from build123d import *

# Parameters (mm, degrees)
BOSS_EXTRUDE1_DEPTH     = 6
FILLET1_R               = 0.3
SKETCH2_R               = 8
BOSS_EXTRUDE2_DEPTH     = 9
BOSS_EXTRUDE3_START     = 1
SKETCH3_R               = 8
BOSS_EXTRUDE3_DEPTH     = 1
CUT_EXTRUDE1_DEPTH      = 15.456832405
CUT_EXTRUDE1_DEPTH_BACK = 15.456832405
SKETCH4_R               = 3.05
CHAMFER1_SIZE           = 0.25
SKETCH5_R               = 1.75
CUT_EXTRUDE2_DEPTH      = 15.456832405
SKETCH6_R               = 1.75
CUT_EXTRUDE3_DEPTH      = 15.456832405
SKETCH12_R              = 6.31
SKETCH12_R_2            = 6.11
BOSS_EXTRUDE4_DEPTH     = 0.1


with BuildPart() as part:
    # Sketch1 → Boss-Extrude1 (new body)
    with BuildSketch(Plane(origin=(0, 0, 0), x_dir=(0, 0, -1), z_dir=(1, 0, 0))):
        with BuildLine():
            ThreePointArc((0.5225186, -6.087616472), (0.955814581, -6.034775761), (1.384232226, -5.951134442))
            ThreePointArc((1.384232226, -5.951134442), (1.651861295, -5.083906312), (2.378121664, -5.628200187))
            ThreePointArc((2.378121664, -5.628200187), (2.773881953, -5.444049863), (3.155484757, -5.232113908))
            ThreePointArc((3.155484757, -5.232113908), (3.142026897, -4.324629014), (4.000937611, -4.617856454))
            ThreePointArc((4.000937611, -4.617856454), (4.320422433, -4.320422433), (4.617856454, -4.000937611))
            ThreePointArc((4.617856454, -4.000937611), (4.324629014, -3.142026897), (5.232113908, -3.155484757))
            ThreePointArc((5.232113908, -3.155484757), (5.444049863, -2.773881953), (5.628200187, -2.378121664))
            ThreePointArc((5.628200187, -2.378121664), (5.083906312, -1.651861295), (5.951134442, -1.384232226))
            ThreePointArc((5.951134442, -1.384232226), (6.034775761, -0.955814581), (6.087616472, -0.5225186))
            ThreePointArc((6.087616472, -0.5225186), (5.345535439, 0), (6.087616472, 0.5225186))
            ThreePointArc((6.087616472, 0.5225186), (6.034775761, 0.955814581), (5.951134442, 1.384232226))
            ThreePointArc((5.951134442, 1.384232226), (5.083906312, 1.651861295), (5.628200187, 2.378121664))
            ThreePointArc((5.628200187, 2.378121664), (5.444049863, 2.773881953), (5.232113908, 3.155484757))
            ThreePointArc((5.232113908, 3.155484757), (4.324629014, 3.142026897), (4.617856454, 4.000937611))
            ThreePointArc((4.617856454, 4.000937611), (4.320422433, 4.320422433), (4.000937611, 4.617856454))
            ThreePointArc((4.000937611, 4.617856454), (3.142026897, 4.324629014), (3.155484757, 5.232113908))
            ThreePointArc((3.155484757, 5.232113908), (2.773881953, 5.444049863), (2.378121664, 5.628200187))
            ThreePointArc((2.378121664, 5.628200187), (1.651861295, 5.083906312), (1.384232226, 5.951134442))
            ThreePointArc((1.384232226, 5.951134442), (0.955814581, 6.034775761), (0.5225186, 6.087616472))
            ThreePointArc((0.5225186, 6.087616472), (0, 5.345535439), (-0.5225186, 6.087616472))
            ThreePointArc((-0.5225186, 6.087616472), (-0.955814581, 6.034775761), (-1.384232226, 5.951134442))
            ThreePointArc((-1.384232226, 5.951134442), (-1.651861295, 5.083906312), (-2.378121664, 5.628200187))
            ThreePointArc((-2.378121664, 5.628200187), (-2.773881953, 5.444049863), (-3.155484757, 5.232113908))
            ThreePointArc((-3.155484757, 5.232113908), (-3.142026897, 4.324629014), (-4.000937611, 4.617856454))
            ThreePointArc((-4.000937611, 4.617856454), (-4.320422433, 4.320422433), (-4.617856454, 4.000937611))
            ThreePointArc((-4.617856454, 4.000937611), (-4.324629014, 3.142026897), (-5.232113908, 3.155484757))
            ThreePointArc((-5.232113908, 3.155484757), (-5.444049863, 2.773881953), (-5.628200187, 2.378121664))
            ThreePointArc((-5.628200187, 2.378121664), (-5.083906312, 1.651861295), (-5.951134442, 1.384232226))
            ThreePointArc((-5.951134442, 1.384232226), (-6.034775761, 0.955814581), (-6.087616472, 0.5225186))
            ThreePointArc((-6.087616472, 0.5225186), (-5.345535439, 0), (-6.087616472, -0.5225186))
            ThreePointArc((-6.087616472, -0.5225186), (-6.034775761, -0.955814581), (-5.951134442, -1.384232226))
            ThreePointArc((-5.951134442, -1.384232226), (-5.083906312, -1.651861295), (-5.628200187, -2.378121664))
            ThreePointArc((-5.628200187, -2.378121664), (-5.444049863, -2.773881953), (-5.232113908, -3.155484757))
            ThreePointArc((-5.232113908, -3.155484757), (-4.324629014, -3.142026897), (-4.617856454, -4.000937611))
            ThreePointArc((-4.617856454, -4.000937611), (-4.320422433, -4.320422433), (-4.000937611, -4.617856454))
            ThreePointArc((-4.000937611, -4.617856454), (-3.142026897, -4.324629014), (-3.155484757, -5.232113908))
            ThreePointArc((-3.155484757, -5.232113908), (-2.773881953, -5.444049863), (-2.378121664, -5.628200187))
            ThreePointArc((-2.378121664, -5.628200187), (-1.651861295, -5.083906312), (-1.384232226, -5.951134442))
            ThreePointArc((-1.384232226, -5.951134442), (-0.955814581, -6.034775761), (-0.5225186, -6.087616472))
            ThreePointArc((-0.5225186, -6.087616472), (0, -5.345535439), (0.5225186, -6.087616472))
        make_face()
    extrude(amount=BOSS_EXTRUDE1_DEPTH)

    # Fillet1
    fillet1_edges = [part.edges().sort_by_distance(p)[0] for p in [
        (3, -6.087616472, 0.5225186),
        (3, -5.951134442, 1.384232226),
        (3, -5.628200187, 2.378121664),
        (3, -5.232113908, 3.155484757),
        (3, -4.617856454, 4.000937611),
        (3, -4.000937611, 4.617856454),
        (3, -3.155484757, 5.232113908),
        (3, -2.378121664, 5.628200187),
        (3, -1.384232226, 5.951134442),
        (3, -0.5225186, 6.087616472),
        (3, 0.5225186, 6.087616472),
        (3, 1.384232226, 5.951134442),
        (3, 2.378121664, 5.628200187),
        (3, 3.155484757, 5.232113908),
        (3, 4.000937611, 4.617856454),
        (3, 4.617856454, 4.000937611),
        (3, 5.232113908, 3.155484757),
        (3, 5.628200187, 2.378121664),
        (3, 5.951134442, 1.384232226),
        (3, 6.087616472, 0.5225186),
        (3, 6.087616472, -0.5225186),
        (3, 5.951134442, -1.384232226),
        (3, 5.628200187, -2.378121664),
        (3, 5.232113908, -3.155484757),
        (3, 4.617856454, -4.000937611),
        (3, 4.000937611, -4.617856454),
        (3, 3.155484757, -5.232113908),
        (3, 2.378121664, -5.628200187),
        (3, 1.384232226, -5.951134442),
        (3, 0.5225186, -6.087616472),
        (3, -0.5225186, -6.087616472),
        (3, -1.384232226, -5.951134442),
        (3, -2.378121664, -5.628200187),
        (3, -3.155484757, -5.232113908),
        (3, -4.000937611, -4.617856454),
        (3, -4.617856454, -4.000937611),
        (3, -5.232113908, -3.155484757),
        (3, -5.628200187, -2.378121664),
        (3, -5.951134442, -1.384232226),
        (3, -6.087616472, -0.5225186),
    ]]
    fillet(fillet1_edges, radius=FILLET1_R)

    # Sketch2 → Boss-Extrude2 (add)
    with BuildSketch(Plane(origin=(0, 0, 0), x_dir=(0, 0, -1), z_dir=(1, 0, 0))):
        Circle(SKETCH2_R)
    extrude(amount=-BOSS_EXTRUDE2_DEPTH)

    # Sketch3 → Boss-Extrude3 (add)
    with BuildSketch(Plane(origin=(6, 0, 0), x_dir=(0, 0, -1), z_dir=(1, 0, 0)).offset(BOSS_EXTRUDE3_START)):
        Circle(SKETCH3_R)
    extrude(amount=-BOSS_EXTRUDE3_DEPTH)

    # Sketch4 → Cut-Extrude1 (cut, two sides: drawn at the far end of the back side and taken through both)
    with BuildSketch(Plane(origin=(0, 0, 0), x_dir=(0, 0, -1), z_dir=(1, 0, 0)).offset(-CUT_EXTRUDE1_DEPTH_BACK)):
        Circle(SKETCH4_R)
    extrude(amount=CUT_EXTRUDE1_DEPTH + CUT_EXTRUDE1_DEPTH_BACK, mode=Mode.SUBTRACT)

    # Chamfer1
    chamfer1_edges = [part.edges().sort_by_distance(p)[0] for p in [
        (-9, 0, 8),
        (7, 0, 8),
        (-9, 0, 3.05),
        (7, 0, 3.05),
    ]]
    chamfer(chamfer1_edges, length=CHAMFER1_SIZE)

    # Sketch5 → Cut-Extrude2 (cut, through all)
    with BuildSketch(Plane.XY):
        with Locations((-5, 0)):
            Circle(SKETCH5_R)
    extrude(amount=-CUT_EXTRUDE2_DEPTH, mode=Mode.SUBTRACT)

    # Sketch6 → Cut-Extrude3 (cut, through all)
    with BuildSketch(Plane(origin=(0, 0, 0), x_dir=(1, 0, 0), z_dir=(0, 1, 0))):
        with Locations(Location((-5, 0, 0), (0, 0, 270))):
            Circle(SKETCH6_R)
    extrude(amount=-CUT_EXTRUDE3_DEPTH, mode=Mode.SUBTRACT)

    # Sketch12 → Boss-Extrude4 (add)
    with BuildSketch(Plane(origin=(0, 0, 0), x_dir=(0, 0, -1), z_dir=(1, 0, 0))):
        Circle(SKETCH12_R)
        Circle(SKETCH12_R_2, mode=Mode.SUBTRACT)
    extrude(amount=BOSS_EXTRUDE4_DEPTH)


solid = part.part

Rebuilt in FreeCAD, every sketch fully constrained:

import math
import FreeCAD as App
import Part
import Sketcher

V = App.Vector


def edges_at(feature, points):
    """Names of the edges that pass closest to the given points."""
    edges = feature.Shape.Edges
    near = lambda p: min(range(len(edges)), key=lambda i: edges[i].distToShape(Part.Vertex(*p))[0])
    return sorted({f"Edge{near(p) + 1}" for p in points})

doc = App.newDocument("Part")
params = doc.addObject("Spreadsheet::Sheet", "Params")
for row, (alias, value) in enumerate([
    ("sketch1_radius", "6.11 mm"),
    ("pad1_length", "6 mm"),
    ("fillet_radius", "0.3 mm"),
    ("sketch2_diameter", "16 mm"),
    ("pad2_length", "9 mm"),
    ("sketch3_diameter", "16 mm"),
    ("pad3_length", "1 mm"),
    ("sketch4_diameter", "6.1 mm"),
    ("chamfer_size", "0.25 mm"),
    ("sketch5_diameter", "3.5 mm"),
    ("sketch6_diameter", "3.5 mm"),
    ("sketch7_diameter", "12.62 mm"),
    ("sketch7_diameter2", "12.22 mm"),
    ("pad4_length", "0.1 mm"),
], start=1):
    params.set(f"A{row}", alias)
    params.set(f"B{row}", "=" + value)
    params.setAlias(f"B{row}", alias)

body = doc.addObject("PartDesign::Body", "Body")

# Sketch on YZ plane
sketch1 = doc.addObject("Sketcher::SketchObject", "Sketch")
body.addObject(sketch1)
sketch1.AttachmentSupport = (doc.YZ_Plane, [""])
sketch1.MapMode = "FlatFace"
sketch1.addGeometry([
    Part.ArcOfCircle(Part.Circle(V(0, 0, 0), V(0, 0, 1), 6.11), math.radians(-175.094153), math.radians(-166.905847)),  # 0
    Part.ArcOfCircle(Part.Circle(V(-5.611743, -1.823366, 0), V(0, 0, 1), 0.555), math.radians(-91.69925), math.radians(127.699251)),  # 1
    Part.ArcOfCircle(Part.Circle(V(0, 0, 0), V(0, 0, 1), 6.11), math.radians(-157.094154), math.radians(-148.905847)),  # 2
    Part.ArcOfCircle(Part.Circle(V(-4.773633, -3.468248, 0), V(0, 0, 1), 0.555), math.radians(-73.69925), math.radians(145.69925)),  # 3
    Part.ArcOfCircle(Part.Circle(V(0, 0, 0), V(0, 0, 1), 6.11), math.radians(-139.094153), math.radians(-130.905847)),  # 4
    Part.ArcOfCircle(Part.Circle(V(-3.468248, -4.773633, 0), V(0, 0, 1), 0.555), math.radians(-55.69925), math.radians(163.69925)),  # 5
    Part.ArcOfCircle(Part.Circle(V(0, 0, 0), V(0, 0, 1), 6.11), math.radians(-121.094153), math.radians(-112.905846)),  # 6
    Part.ArcOfCircle(Part.Circle(V(-1.823366, -5.611743, 0), V(0, 0, 1), 0.555), math.radians(-37.699251), math.radians(181.69925)),  # 7
    Part.ArcOfCircle(Part.Circle(V(0, 0, 0), V(0, 0, 1), 6.11), math.radians(-103.094153), math.radians(-94.905847)),  # 8
    Part.ArcOfCircle(Part.Circle(V(0, -5.900535, 0), V(0, 0, 1), 0.555), math.radians(-19.69925), math.radians(199.69925)),  # 9
    Part.ArcOfCircle(Part.Circle(V(0, 0, 0), V(0, 0, 1), 6.11), math.radians(-85.094153), math.radians(-76.905847)),  # 10
    Part.ArcOfCircle(Part.Circle(V(1.823366, -5.611743, 0), V(0, 0, 1), 0.555), math.radians(-1.69925), math.radians(217.699251)),  # 11
    Part.ArcOfCircle(Part.Circle(V(0, 0, 0), V(0, 0, 1), 6.11), math.radians(-67.094154), math.radians(-58.905847)),  # 12
    Part.ArcOfCircle(Part.Circle(V(3.468248, -4.773633, 0), V(0, 0, 1), 0.555), math.radians(16.30075), math.radians(235.69925)),  # 13
    Part.ArcOfCircle(Part.Circle(V(0, 0, 0), V(0, 0, 1), 6.11), math.radians(-49.094153), math.radians(-40.905847)),  # 14
    Part.ArcOfCircle(Part.Circle(V(4.773633, -3.468248, 0), V(0, 0, 1), 0.555), math.radians(34.30075), math.radians(253.69925)),  # 15
    Part.ArcOfCircle(Part.Circle(V(0, 0, 0), V(0, 0, 1), 6.11), math.radians(-31.094153), math.radians(-22.905846)),  # 16
    Part.ArcOfCircle(Part.Circle(V(5.611743, -1.823366, 0), V(0, 0, 1), 0.555), math.radians(52.300749), math.radians(271.69925)),  # 17
    Part.ArcOfCircle(Part.Circle(V(0, 0, 0), V(0, 0, 1), 6.11), math.radians(-13.094153), math.radians(-4.905847)),  # 18
    Part.ArcOfCircle(Part.Circle(V(5.900535, 0, 0), V(0, 0, 1), 0.555), math.radians(70.30075), math.radians(289.69925)),  # 19
    Part.ArcOfCircle(Part.Circle(V(0, 0, 0), V(0, 0, 1), 6.11), math.radians(4.905847), math.radians(13.094153)),  # 20
    Part.ArcOfCircle(Part.Circle(V(5.611743, 1.823366, 0), V(0, 0, 1), 0.555), math.radians(88.30075), math.radians(307.699251)),  # 21
    Part.ArcOfCircle(Part.Circle(V(0, 0, 0), V(0, 0, 1), 6.11), math.radians(22.905846), math.radians(31.094153)),  # 22
    Part.ArcOfCircle(Part.Circle(V(4.773633, 3.468248, 0), V(0, 0, 1), 0.555), math.radians(106.30075), math.radians(325.69925)),  # 23
    Part.ArcOfCircle(Part.Circle(V(0, 0, 0), V(0, 0, 1), 6.11), math.radians(40.905847), math.radians(49.094153)),  # 24
    Part.ArcOfCircle(Part.Circle(V(3.468248, 4.773633, 0), V(0, 0, 1), 0.555), math.radians(124.30075), math.radians(343.69925)),  # 25
    Part.ArcOfCircle(Part.Circle(V(0, 0, 0), V(0, 0, 1), 6.11), math.radians(58.905847), math.radians(67.094154)),  # 26
    Part.ArcOfCircle(Part.Circle(V(1.823366, 5.611743, 0), V(0, 0, 1), 0.555), math.radians(142.300749), math.radians(361.69925)),  # 27
    Part.ArcOfCircle(Part.Circle(V(0, 0, 0), V(0, 0, 1), 6.11), math.radians(76.905847), math.radians(85.094153)),  # 28
    Part.ArcOfCircle(Part.Circle(V(0, 5.900535, 0), V(0, 0, 1), 0.555), math.radians(160.30075), math.radians(379.69925)),  # 29
    Part.ArcOfCircle(Part.Circle(V(0, 0, 0), V(0, 0, 1), 6.11), math.radians(94.905847), math.radians(103.094153)),  # 30
    Part.ArcOfCircle(Part.Circle(V(-1.823366, 5.611743, 0), V(0, 0, 1), 0.555), math.radians(178.30075), math.radians(397.699251)),  # 31
    Part.ArcOfCircle(Part.Circle(V(0, 0, 0), V(0, 0, 1), 6.11), math.radians(112.905846), math.radians(121.094153)),  # 32
    Part.ArcOfCircle(Part.Circle(V(-3.468248, 4.773633, 0), V(0, 0, 1), 0.555), math.radians(-163.69925), math.radians(55.69925)),  # 33
    Part.ArcOfCircle(Part.Circle(V(0, 0, 0), V(0, 0, 1), 6.11), math.radians(130.905847), math.radians(139.094153)),  # 34
    Part.ArcOfCircle(Part.Circle(V(-4.773633, 3.468248, 0), V(0, 0, 1), 0.555), math.radians(-145.69925), math.radians(73.69925)),  # 35
    Part.ArcOfCircle(Part.Circle(V(0, 0, 0), V(0, 0, 1), 6.11), math.radians(148.905847), math.radians(157.094154)),  # 36
    Part.ArcOfCircle(Part.Circle(V(-5.611743, 1.823366, 0), V(0, 0, 1), 0.555), math.radians(-127.699251), math.radians(91.69925)),  # 37
    Part.ArcOfCircle(Part.Circle(V(0, 0, 0), V(0, 0, 1), 6.11), math.radians(166.905847), math.radians(175.094153)),  # 38
    Part.ArcOfCircle(Part.Circle(V(-5.900535, 0, 0), V(0, 0, 1), 0.555), math.radians(-109.69925), math.radians(109.69925)),  # 39
], False)
sketch1.addConstraint([
    Sketcher.Constraint("Coincident", 0, 2, 1, 2),
    Sketcher.Constraint("Coincident", 1, 1, 2, 1),
    Sketcher.Constraint("Coincident", 2, 2, 3, 2),
    Sketcher.Constraint("Coincident", 3, 1, 4, 1),
    Sketcher.Constraint("Coincident", 4, 2, 5, 2),
    Sketcher.Constraint("Coincident", 5, 1, 6, 1),
    Sketcher.Constraint("Coincident", 6, 2, 7, 2),
    Sketcher.Constraint("Coincident", 7, 1, 8, 1),
    Sketcher.Constraint("Coincident", 8, 2, 9, 2),
    Sketcher.Constraint("Coincident", 9, 1, 10, 1),
    Sketcher.Constraint("Coincident", 10, 2, 11, 2),
    Sketcher.Constraint("Coincident", 11, 1, 12, 1),
    Sketcher.Constraint("Coincident", 12, 2, 13, 2),
    Sketcher.Constraint("Coincident", 13, 1, 14, 1),
    Sketcher.Constraint("Coincident", 14, 2, 15, 2),
    Sketcher.Constraint("Coincident", 15, 1, 16, 1),
    Sketcher.Constraint("Coincident", 16, 2, 17, 2),
    Sketcher.Constraint("Coincident", 17, 1, 18, 1),
    Sketcher.Constraint("Coincident", 18, 2, 19, 2),
    Sketcher.Constraint("Coincident", 19, 1, 20, 1),
    Sketcher.Constraint("Coincident", 20, 2, 21, 2),
    Sketcher.Constraint("Coincident", 21, 1, 22, 1),
    Sketcher.Constraint("Coincident", 22, 2, 23, 2),
    Sketcher.Constraint("Coincident", 23, 1, 24, 1),
    Sketcher.Constraint("Coincident", 24, 2, 25, 2),
    Sketcher.Constraint("Coincident", 25, 1, 26, 1),
    Sketcher.Constraint("Coincident", 26, 2, 27, 2),
    Sketcher.Constraint("Coincident", 27, 1, 28, 1),
    Sketcher.Constraint("Coincident", 28, 2, 29, 2),
    Sketcher.Constraint("Coincident", 29, 1, 30, 1),
    Sketcher.Constraint("Coincident", 30, 2, 31, 2),
    Sketcher.Constraint("Coincident", 31, 1, 32, 1),
    Sketcher.Constraint("Coincident", 32, 2, 33, 2),
    Sketcher.Constraint("Coincident", 33, 1, 34, 1),
    Sketcher.Constraint("Coincident", 34, 2, 35, 2),
    Sketcher.Constraint("Coincident", 35, 1, 36, 1),
    Sketcher.Constraint("Coincident", 36, 2, 37, 2),
    Sketcher.Constraint("Coincident", 37, 1, 38, 1),
    Sketcher.Constraint("Coincident", 38, 2, 39, 2),
    Sketcher.Constraint("Coincident", 39, 1, 0, 1),
    Sketcher.Constraint("Coincident", 0, 3, -1, 1),
    Sketcher.Constraint("Coincident", 2, 3, -1, 1),
    Sketcher.Constraint("Coincident", 4, 3, -1, 1),
    Sketcher.Constraint("Coincident", 6, 3, -1, 1),
    Sketcher.Constraint("Coincident", 8, 3, -1, 1),
    Sketcher.Constraint("Coincident", 10, 3, -1, 1),
    Sketcher.Constraint("Coincident", 12, 3, -1, 1),
    Sketcher.Constraint("Coincident", 14, 3, -1, 1),
    Sketcher.Constraint("Coincident", 16, 3, -1, 1),
    Sketcher.Constraint("Coincident", 18, 3, -1, 1),
    Sketcher.Constraint("Coincident", 20, 3, -1, 1),
    Sketcher.Constraint("Coincident", 22, 3, -1, 1),
    Sketcher.Constraint("Coincident", 24, 3, -1, 1),
    Sketcher.Constraint("Coincident", 26, 3, -1, 1),
    Sketcher.Constraint("Coincident", 28, 3, -1, 1),
    Sketcher.Constraint("Coincident", 30, 3, -1, 1),
    Sketcher.Constraint("Coincident", 32, 3, -1, 1),
    Sketcher.Constraint("Coincident", 34, 3, -1, 1),
    Sketcher.Constraint("Coincident", 36, 3, -1, 1),
    Sketcher.Constraint("Coincident", 38, 3, -1, 1),
    Sketcher.Constraint("Equal", 0, 2),
    Sketcher.Constraint("Equal", 1, 3),
    Sketcher.Constraint("Equal", 2, 4),
    Sketcher.Constraint("Equal", 3, 5),
    Sketcher.Constraint("Equal", 4, 6),
    Sketcher.Constraint("Equal", 5, 7),
    Sketcher.Constraint("Equal", 6, 8),
    Sketcher.Constraint("Equal", 7, 9),
    Sketcher.Constraint("Equal", 8, 10),
    Sketcher.Constraint("Equal", 9, 11),
    Sketcher.Constraint("Equal", 10, 12),
    Sketcher.Constraint("Equal", 11, 13),
    Sketcher.Constraint("Equal", 12, 14),
    Sketcher.Constraint("Equal", 13, 15),
    Sketcher.Constraint("Equal", 14, 16),
    Sketcher.Constraint("Equal", 15, 17),
    Sketcher.Constraint("Equal", 16, 18),
    Sketcher.Constraint("Equal", 17, 19),
    Sketcher.Constraint("Equal", 18, 20),
    Sketcher.Constraint("Equal", 19, 21),
    Sketcher.Constraint("Equal", 20, 22),
    Sketcher.Constraint("Equal", 21, 23),
    Sketcher.Constraint("Equal", 22, 24),
    Sketcher.Constraint("Equal", 23, 25),
    Sketcher.Constraint("Equal", 24, 26),
    Sketcher.Constraint("Equal", 25, 27),
    Sketcher.Constraint("Equal", 26, 28),
    Sketcher.Constraint("Equal", 27, 29),
    Sketcher.Constraint("Equal", 28, 30),
    Sketcher.Constraint("Equal", 29, 31),
    Sketcher.Constraint("Equal", 30, 32),
    Sketcher.Constraint("Equal", 31, 33),
    Sketcher.Constraint("Equal", 32, 34),
    Sketcher.Constraint("Equal", 33, 35),
    Sketcher.Constraint("Equal", 34, 36),
    Sketcher.Constraint("Equal", 35, 37),
    Sketcher.Constraint("Equal", 36, 38),
    Sketcher.Constraint("Equal", 37, 39),
    Sketcher.Constraint("Symmetric", 1, 3, 21, 3, -1, 1),
    Sketcher.Constraint("Symmetric", 3, 3, 23, 3, -1, 1),
    Sketcher.Constraint("Symmetric", 5, 3, 25, 3, -1, 1),
    Sketcher.Constraint("Symmetric", 7, 3, 27, 3, -1, 1),
    Sketcher.Constraint("Symmetric", 9, 3, 29, 3, -1, 1),
    Sketcher.Constraint("Symmetric", 11, 3, 31, 3, -1, 1),
    Sketcher.Constraint("Symmetric", 13, 3, 33, 3, -1, 1),
    Sketcher.Constraint("Symmetric", 15, 3, 35, 3, -1, 1),
    Sketcher.Constraint("Symmetric", 17, 3, 37, 3, -1, 1),
    Sketcher.Constraint("Symmetric", 19, 3, 39, 3, -1, 1),
    Sketcher.Constraint("Symmetric", 7, 3, 11, 3, -2),
    Sketcher.Constraint("Symmetric", 5, 3, 13, 3, -2),
    Sketcher.Constraint("Symmetric", 3, 3, 15, 3, -2),
    Sketcher.Constraint("Symmetric", 1, 3, 17, 3, -2),
    Sketcher.Constraint("PointOnObject", 9, 3, -2),
    Sketcher.Constraint("PointOnObject", 19, 3, -1),
    Sketcher.Constraint("Radius", 0, 6.11),
    Sketcher.Constraint("Radius", 1, 0.555),
    Sketcher.Constraint("DistanceX", 1, 1, -1, 1, 5.6282),
    Sketcher.Constraint("DistanceY", 6, 2, -1, 1, 5.6282),
    Sketcher.Constraint("DistanceX", 8, 2, -1, 1, 0.522519),
    Sketcher.Constraint("DistanceY", 18, 2, -1, 1, 0.522519),
    Sketcher.Constraint("DistanceX", 1, 3, -1, 1, 5.611743),
    Sketcher.Constraint("DistanceX", 3, 3, -1, 1, 4.773633),
    Sketcher.Constraint("DistanceY", 3, 3, -1, 1, 3.468248),
    Sketcher.Constraint("DistanceX", 5, 3, -1, 1, 3.468248),
    Sketcher.Constraint("DistanceY", 5, 3, -1, 1, 4.773633),
    Sketcher.Constraint("DistanceX", 7, 3, -1, 1, 1.823366),
])
sketch1.setExpression("Constraints[114]", "Params.sketch1_radius")
pad1 = doc.addObject("PartDesign::Pad", "Pad")
body.addObject(pad1)
pad1.Profile = sketch1
pad1.setExpression("Length", "Params.pad1_length")
doc.recompute()

fillet = doc.addObject("PartDesign::Fillet", "Fillet")
body.addObject(fillet)
fillet.Base = (pad1, edges_at(pad1, [
    (3, -6.088, 0.523),
    (3, -5.951, 1.384),
    (3, -5.628, 2.378),
    (3, -5.232, 3.155),
    (3, -4.618, 4.001),
    (3, -4.001, 4.618),
    (3, -3.155, 5.232),
    (3, -2.378, 5.628),
    (3, -1.384, 5.951),
    (3, -0.523, 6.088),
    (3, 0.523, 6.088),
    (3, 1.384, 5.951),
    (3, 2.378, 5.628),
    (3, 3.155, 5.232),
    (3, 4.001, 4.618),
    (3, 4.618, 4.001),
    (3, 5.232, 3.155),
    (3, 5.628, 2.378),
    (3, 5.951, 1.384),
    (3, 6.088, 0.523),
    (3, 6.088, -0.523),
    (3, 5.951, -1.384),
    (3, 5.628, -2.378),
    (3, 5.232, -3.155),
    (3, 4.618, -4.001),
    (3, 4.001, -4.618),
    (3, 3.155, -5.232),
    (3, 2.378, -5.628),
    (3, 1.384, -5.951),
    (3, 0.523, -6.088),
    (3, -0.523, -6.088),
    (3, -1.384, -5.951),
    (3, -2.378, -5.628),
    (3, -3.155, -5.232),
    (3, -4.001, -4.618),
    (3, -4.618, -4.001),
    (3, -5.232, -3.155),
    (3, -5.628, -2.378),
    (3, -5.951, -1.384),
    (3, -6.088, -0.523),
]))
fillet.setExpression("Radius", "Params.fillet_radius")

# Sketch on YZ plane
sketch2 = doc.addObject("Sketcher::SketchObject", "Sketch001")
body.addObject(sketch2)
sketch2.AttachmentSupport = (doc.YZ_Plane, [""])
sketch2.MapMode = "FlatFace"
sketch2.addGeometry(Part.Circle(V(0, 0, 0), V(0, 0, 1), 8), False)
sketch2.addConstraint([
    Sketcher.Constraint("Coincident", 0, 3, -1, 1),
    Sketcher.Constraint("Diameter", 0, 16.0),
])
sketch2.setExpression("Constraints[1]", "Params.sketch2_diameter")
pad2 = doc.addObject("PartDesign::Pad", "Pad001")
body.addObject(pad2)
pad2.Profile = sketch2
pad2.setExpression("Length", "Params.pad2_length")
pad2.Reversed = True

# Sketch on YZ plane
sketch3 = doc.addObject("Sketcher::SketchObject", "Sketch002")
body.addObject(sketch3)
sketch3.AttachmentSupport = (doc.YZ_Plane, [""])
sketch3.MapMode = "FlatFace"
sketch3.AttachmentOffset = App.Placement(V(0, 0, 7), App.Rotation())
sketch3.addGeometry(Part.Circle(V(0, 0, 0), V(0, 0, 1), 8), False)
sketch3.addConstraint([
    Sketcher.Constraint("Coincident", 0, 3, -1, 1),
    Sketcher.Constraint("Diameter", 0, 16.0),
])
sketch3.setExpression("Constraints[1]", "Params.sketch3_diameter")
pad3 = doc.addObject("PartDesign::Pad", "Pad002")
body.addObject(pad3)
pad3.Profile = sketch3
pad3.setExpression("Length", "Params.pad3_length")
pad3.Reversed = True

# Sketch on YZ plane
sketch4 = doc.addObject("Sketcher::SketchObject", "Sketch003")
body.addObject(sketch4)
sketch4.AttachmentSupport = (doc.YZ_Plane, [""])
sketch4.MapMode = "FlatFace"
sketch4.addGeometry(Part.Circle(V(0, 0, 0), V(0, 0, 1), 3.05), False)
sketch4.addConstraint([
    Sketcher.Constraint("Coincident", 0, 3, -1, 1),
    Sketcher.Constraint("Diameter", 0, 6.1),
])
sketch4.setExpression("Constraints[1]", "Params.sketch4_diameter")
pocket1 = doc.addObject("PartDesign::Pocket", "Pocket")
body.addObject(pocket1)
pocket1.Profile = sketch4
pocket1.Type = "ThroughAll"
pocket1.Midplane = True
doc.recompute()

chamfer = doc.addObject("PartDesign::Chamfer", "Chamfer")
body.addObject(chamfer)
chamfer.Base = (pocket1, edges_at(pocket1, [
    (-9, 0, 8),
    (7, 0, 8),
    (-9, 0, 3.05),
    (7, 0, 3.05),
]))
chamfer.setExpression("Size", "Params.chamfer_size")

# Sketch on XY plane
sketch5 = doc.addObject("Sketcher::SketchObject", "Sketch004")
body.addObject(sketch5)
sketch5.AttachmentSupport = (doc.XY_Plane, [""])
sketch5.MapMode = "FlatFace"
sketch5.addGeometry(Part.Circle(V(-5, 0, 0), V(0, 0, 1), 1.75), False)
sketch5.addConstraint([
    Sketcher.Constraint("PointOnObject", 0, 3, -1),
    Sketcher.Constraint("Diameter", 0, 3.5),
    Sketcher.Constraint("DistanceX", 0, 3, -1, 1, 5.0),
])
sketch5.setExpression("Constraints[1]", "Params.sketch5_diameter")
pocket2 = doc.addObject("PartDesign::Pocket", "Pocket001")
body.addObject(pocket2)
pocket2.Profile = sketch5
pocket2.Type = "ThroughAll"

# Sketch on XZ plane
sketch6 = doc.addObject("Sketcher::SketchObject", "Sketch005")
body.addObject(sketch6)
sketch6.AttachmentSupport = (doc.XZ_Plane, [""])
sketch6.MapMode = "FlatFace"
sketch6.addGeometry(Part.Circle(V(-5, 0, 0), V(0, 0, 1), 1.75), False)
sketch6.addConstraint([
    Sketcher.Constraint("PointOnObject", 0, 3, -1),
    Sketcher.Constraint("Diameter", 0, 3.5),
    Sketcher.Constraint("DistanceX", 0, 3, -1, 1, 5.0),
])
sketch6.setExpression("Constraints[1]", "Params.sketch6_diameter")
pocket3 = doc.addObject("PartDesign::Pocket", "Pocket002")
body.addObject(pocket3)
pocket3.Profile = sketch6
pocket3.Type = "ThroughAll"
pocket3.Reversed = True

# Sketch on YZ plane
sketch7 = doc.addObject("Sketcher::SketchObject", "Sketch006")
body.addObject(sketch7)
sketch7.AttachmentSupport = (doc.YZ_Plane, [""])
sketch7.MapMode = "FlatFace"
sketch7.addGeometry([
    Part.Circle(V(0, 0, 0), V(0, 0, 1), 6.31),
    Part.Circle(V(0, 0, 0), V(0, 0, 1), 6.11),
], False)
sketch7.addConstraint([
    Sketcher.Constraint("Coincident", 0, 3, -1, 1),
    Sketcher.Constraint("Coincident", 1, 3, -1, 1),
    Sketcher.Constraint("Diameter", 0, 12.62),
    Sketcher.Constraint("Diameter", 1, 12.22),
])
sketch7.setExpression("Constraints[2]", "Params.sketch7_diameter")
sketch7.setExpression("Constraints[3]", "Params.sketch7_diameter2")
pad4 = doc.addObject("PartDesign::Pad", "Pad003")
body.addObject(pad4)
pad4.Profile = sketch7
pad4.setExpression("Length", "Params.pad4_length")

doc.recompute()
